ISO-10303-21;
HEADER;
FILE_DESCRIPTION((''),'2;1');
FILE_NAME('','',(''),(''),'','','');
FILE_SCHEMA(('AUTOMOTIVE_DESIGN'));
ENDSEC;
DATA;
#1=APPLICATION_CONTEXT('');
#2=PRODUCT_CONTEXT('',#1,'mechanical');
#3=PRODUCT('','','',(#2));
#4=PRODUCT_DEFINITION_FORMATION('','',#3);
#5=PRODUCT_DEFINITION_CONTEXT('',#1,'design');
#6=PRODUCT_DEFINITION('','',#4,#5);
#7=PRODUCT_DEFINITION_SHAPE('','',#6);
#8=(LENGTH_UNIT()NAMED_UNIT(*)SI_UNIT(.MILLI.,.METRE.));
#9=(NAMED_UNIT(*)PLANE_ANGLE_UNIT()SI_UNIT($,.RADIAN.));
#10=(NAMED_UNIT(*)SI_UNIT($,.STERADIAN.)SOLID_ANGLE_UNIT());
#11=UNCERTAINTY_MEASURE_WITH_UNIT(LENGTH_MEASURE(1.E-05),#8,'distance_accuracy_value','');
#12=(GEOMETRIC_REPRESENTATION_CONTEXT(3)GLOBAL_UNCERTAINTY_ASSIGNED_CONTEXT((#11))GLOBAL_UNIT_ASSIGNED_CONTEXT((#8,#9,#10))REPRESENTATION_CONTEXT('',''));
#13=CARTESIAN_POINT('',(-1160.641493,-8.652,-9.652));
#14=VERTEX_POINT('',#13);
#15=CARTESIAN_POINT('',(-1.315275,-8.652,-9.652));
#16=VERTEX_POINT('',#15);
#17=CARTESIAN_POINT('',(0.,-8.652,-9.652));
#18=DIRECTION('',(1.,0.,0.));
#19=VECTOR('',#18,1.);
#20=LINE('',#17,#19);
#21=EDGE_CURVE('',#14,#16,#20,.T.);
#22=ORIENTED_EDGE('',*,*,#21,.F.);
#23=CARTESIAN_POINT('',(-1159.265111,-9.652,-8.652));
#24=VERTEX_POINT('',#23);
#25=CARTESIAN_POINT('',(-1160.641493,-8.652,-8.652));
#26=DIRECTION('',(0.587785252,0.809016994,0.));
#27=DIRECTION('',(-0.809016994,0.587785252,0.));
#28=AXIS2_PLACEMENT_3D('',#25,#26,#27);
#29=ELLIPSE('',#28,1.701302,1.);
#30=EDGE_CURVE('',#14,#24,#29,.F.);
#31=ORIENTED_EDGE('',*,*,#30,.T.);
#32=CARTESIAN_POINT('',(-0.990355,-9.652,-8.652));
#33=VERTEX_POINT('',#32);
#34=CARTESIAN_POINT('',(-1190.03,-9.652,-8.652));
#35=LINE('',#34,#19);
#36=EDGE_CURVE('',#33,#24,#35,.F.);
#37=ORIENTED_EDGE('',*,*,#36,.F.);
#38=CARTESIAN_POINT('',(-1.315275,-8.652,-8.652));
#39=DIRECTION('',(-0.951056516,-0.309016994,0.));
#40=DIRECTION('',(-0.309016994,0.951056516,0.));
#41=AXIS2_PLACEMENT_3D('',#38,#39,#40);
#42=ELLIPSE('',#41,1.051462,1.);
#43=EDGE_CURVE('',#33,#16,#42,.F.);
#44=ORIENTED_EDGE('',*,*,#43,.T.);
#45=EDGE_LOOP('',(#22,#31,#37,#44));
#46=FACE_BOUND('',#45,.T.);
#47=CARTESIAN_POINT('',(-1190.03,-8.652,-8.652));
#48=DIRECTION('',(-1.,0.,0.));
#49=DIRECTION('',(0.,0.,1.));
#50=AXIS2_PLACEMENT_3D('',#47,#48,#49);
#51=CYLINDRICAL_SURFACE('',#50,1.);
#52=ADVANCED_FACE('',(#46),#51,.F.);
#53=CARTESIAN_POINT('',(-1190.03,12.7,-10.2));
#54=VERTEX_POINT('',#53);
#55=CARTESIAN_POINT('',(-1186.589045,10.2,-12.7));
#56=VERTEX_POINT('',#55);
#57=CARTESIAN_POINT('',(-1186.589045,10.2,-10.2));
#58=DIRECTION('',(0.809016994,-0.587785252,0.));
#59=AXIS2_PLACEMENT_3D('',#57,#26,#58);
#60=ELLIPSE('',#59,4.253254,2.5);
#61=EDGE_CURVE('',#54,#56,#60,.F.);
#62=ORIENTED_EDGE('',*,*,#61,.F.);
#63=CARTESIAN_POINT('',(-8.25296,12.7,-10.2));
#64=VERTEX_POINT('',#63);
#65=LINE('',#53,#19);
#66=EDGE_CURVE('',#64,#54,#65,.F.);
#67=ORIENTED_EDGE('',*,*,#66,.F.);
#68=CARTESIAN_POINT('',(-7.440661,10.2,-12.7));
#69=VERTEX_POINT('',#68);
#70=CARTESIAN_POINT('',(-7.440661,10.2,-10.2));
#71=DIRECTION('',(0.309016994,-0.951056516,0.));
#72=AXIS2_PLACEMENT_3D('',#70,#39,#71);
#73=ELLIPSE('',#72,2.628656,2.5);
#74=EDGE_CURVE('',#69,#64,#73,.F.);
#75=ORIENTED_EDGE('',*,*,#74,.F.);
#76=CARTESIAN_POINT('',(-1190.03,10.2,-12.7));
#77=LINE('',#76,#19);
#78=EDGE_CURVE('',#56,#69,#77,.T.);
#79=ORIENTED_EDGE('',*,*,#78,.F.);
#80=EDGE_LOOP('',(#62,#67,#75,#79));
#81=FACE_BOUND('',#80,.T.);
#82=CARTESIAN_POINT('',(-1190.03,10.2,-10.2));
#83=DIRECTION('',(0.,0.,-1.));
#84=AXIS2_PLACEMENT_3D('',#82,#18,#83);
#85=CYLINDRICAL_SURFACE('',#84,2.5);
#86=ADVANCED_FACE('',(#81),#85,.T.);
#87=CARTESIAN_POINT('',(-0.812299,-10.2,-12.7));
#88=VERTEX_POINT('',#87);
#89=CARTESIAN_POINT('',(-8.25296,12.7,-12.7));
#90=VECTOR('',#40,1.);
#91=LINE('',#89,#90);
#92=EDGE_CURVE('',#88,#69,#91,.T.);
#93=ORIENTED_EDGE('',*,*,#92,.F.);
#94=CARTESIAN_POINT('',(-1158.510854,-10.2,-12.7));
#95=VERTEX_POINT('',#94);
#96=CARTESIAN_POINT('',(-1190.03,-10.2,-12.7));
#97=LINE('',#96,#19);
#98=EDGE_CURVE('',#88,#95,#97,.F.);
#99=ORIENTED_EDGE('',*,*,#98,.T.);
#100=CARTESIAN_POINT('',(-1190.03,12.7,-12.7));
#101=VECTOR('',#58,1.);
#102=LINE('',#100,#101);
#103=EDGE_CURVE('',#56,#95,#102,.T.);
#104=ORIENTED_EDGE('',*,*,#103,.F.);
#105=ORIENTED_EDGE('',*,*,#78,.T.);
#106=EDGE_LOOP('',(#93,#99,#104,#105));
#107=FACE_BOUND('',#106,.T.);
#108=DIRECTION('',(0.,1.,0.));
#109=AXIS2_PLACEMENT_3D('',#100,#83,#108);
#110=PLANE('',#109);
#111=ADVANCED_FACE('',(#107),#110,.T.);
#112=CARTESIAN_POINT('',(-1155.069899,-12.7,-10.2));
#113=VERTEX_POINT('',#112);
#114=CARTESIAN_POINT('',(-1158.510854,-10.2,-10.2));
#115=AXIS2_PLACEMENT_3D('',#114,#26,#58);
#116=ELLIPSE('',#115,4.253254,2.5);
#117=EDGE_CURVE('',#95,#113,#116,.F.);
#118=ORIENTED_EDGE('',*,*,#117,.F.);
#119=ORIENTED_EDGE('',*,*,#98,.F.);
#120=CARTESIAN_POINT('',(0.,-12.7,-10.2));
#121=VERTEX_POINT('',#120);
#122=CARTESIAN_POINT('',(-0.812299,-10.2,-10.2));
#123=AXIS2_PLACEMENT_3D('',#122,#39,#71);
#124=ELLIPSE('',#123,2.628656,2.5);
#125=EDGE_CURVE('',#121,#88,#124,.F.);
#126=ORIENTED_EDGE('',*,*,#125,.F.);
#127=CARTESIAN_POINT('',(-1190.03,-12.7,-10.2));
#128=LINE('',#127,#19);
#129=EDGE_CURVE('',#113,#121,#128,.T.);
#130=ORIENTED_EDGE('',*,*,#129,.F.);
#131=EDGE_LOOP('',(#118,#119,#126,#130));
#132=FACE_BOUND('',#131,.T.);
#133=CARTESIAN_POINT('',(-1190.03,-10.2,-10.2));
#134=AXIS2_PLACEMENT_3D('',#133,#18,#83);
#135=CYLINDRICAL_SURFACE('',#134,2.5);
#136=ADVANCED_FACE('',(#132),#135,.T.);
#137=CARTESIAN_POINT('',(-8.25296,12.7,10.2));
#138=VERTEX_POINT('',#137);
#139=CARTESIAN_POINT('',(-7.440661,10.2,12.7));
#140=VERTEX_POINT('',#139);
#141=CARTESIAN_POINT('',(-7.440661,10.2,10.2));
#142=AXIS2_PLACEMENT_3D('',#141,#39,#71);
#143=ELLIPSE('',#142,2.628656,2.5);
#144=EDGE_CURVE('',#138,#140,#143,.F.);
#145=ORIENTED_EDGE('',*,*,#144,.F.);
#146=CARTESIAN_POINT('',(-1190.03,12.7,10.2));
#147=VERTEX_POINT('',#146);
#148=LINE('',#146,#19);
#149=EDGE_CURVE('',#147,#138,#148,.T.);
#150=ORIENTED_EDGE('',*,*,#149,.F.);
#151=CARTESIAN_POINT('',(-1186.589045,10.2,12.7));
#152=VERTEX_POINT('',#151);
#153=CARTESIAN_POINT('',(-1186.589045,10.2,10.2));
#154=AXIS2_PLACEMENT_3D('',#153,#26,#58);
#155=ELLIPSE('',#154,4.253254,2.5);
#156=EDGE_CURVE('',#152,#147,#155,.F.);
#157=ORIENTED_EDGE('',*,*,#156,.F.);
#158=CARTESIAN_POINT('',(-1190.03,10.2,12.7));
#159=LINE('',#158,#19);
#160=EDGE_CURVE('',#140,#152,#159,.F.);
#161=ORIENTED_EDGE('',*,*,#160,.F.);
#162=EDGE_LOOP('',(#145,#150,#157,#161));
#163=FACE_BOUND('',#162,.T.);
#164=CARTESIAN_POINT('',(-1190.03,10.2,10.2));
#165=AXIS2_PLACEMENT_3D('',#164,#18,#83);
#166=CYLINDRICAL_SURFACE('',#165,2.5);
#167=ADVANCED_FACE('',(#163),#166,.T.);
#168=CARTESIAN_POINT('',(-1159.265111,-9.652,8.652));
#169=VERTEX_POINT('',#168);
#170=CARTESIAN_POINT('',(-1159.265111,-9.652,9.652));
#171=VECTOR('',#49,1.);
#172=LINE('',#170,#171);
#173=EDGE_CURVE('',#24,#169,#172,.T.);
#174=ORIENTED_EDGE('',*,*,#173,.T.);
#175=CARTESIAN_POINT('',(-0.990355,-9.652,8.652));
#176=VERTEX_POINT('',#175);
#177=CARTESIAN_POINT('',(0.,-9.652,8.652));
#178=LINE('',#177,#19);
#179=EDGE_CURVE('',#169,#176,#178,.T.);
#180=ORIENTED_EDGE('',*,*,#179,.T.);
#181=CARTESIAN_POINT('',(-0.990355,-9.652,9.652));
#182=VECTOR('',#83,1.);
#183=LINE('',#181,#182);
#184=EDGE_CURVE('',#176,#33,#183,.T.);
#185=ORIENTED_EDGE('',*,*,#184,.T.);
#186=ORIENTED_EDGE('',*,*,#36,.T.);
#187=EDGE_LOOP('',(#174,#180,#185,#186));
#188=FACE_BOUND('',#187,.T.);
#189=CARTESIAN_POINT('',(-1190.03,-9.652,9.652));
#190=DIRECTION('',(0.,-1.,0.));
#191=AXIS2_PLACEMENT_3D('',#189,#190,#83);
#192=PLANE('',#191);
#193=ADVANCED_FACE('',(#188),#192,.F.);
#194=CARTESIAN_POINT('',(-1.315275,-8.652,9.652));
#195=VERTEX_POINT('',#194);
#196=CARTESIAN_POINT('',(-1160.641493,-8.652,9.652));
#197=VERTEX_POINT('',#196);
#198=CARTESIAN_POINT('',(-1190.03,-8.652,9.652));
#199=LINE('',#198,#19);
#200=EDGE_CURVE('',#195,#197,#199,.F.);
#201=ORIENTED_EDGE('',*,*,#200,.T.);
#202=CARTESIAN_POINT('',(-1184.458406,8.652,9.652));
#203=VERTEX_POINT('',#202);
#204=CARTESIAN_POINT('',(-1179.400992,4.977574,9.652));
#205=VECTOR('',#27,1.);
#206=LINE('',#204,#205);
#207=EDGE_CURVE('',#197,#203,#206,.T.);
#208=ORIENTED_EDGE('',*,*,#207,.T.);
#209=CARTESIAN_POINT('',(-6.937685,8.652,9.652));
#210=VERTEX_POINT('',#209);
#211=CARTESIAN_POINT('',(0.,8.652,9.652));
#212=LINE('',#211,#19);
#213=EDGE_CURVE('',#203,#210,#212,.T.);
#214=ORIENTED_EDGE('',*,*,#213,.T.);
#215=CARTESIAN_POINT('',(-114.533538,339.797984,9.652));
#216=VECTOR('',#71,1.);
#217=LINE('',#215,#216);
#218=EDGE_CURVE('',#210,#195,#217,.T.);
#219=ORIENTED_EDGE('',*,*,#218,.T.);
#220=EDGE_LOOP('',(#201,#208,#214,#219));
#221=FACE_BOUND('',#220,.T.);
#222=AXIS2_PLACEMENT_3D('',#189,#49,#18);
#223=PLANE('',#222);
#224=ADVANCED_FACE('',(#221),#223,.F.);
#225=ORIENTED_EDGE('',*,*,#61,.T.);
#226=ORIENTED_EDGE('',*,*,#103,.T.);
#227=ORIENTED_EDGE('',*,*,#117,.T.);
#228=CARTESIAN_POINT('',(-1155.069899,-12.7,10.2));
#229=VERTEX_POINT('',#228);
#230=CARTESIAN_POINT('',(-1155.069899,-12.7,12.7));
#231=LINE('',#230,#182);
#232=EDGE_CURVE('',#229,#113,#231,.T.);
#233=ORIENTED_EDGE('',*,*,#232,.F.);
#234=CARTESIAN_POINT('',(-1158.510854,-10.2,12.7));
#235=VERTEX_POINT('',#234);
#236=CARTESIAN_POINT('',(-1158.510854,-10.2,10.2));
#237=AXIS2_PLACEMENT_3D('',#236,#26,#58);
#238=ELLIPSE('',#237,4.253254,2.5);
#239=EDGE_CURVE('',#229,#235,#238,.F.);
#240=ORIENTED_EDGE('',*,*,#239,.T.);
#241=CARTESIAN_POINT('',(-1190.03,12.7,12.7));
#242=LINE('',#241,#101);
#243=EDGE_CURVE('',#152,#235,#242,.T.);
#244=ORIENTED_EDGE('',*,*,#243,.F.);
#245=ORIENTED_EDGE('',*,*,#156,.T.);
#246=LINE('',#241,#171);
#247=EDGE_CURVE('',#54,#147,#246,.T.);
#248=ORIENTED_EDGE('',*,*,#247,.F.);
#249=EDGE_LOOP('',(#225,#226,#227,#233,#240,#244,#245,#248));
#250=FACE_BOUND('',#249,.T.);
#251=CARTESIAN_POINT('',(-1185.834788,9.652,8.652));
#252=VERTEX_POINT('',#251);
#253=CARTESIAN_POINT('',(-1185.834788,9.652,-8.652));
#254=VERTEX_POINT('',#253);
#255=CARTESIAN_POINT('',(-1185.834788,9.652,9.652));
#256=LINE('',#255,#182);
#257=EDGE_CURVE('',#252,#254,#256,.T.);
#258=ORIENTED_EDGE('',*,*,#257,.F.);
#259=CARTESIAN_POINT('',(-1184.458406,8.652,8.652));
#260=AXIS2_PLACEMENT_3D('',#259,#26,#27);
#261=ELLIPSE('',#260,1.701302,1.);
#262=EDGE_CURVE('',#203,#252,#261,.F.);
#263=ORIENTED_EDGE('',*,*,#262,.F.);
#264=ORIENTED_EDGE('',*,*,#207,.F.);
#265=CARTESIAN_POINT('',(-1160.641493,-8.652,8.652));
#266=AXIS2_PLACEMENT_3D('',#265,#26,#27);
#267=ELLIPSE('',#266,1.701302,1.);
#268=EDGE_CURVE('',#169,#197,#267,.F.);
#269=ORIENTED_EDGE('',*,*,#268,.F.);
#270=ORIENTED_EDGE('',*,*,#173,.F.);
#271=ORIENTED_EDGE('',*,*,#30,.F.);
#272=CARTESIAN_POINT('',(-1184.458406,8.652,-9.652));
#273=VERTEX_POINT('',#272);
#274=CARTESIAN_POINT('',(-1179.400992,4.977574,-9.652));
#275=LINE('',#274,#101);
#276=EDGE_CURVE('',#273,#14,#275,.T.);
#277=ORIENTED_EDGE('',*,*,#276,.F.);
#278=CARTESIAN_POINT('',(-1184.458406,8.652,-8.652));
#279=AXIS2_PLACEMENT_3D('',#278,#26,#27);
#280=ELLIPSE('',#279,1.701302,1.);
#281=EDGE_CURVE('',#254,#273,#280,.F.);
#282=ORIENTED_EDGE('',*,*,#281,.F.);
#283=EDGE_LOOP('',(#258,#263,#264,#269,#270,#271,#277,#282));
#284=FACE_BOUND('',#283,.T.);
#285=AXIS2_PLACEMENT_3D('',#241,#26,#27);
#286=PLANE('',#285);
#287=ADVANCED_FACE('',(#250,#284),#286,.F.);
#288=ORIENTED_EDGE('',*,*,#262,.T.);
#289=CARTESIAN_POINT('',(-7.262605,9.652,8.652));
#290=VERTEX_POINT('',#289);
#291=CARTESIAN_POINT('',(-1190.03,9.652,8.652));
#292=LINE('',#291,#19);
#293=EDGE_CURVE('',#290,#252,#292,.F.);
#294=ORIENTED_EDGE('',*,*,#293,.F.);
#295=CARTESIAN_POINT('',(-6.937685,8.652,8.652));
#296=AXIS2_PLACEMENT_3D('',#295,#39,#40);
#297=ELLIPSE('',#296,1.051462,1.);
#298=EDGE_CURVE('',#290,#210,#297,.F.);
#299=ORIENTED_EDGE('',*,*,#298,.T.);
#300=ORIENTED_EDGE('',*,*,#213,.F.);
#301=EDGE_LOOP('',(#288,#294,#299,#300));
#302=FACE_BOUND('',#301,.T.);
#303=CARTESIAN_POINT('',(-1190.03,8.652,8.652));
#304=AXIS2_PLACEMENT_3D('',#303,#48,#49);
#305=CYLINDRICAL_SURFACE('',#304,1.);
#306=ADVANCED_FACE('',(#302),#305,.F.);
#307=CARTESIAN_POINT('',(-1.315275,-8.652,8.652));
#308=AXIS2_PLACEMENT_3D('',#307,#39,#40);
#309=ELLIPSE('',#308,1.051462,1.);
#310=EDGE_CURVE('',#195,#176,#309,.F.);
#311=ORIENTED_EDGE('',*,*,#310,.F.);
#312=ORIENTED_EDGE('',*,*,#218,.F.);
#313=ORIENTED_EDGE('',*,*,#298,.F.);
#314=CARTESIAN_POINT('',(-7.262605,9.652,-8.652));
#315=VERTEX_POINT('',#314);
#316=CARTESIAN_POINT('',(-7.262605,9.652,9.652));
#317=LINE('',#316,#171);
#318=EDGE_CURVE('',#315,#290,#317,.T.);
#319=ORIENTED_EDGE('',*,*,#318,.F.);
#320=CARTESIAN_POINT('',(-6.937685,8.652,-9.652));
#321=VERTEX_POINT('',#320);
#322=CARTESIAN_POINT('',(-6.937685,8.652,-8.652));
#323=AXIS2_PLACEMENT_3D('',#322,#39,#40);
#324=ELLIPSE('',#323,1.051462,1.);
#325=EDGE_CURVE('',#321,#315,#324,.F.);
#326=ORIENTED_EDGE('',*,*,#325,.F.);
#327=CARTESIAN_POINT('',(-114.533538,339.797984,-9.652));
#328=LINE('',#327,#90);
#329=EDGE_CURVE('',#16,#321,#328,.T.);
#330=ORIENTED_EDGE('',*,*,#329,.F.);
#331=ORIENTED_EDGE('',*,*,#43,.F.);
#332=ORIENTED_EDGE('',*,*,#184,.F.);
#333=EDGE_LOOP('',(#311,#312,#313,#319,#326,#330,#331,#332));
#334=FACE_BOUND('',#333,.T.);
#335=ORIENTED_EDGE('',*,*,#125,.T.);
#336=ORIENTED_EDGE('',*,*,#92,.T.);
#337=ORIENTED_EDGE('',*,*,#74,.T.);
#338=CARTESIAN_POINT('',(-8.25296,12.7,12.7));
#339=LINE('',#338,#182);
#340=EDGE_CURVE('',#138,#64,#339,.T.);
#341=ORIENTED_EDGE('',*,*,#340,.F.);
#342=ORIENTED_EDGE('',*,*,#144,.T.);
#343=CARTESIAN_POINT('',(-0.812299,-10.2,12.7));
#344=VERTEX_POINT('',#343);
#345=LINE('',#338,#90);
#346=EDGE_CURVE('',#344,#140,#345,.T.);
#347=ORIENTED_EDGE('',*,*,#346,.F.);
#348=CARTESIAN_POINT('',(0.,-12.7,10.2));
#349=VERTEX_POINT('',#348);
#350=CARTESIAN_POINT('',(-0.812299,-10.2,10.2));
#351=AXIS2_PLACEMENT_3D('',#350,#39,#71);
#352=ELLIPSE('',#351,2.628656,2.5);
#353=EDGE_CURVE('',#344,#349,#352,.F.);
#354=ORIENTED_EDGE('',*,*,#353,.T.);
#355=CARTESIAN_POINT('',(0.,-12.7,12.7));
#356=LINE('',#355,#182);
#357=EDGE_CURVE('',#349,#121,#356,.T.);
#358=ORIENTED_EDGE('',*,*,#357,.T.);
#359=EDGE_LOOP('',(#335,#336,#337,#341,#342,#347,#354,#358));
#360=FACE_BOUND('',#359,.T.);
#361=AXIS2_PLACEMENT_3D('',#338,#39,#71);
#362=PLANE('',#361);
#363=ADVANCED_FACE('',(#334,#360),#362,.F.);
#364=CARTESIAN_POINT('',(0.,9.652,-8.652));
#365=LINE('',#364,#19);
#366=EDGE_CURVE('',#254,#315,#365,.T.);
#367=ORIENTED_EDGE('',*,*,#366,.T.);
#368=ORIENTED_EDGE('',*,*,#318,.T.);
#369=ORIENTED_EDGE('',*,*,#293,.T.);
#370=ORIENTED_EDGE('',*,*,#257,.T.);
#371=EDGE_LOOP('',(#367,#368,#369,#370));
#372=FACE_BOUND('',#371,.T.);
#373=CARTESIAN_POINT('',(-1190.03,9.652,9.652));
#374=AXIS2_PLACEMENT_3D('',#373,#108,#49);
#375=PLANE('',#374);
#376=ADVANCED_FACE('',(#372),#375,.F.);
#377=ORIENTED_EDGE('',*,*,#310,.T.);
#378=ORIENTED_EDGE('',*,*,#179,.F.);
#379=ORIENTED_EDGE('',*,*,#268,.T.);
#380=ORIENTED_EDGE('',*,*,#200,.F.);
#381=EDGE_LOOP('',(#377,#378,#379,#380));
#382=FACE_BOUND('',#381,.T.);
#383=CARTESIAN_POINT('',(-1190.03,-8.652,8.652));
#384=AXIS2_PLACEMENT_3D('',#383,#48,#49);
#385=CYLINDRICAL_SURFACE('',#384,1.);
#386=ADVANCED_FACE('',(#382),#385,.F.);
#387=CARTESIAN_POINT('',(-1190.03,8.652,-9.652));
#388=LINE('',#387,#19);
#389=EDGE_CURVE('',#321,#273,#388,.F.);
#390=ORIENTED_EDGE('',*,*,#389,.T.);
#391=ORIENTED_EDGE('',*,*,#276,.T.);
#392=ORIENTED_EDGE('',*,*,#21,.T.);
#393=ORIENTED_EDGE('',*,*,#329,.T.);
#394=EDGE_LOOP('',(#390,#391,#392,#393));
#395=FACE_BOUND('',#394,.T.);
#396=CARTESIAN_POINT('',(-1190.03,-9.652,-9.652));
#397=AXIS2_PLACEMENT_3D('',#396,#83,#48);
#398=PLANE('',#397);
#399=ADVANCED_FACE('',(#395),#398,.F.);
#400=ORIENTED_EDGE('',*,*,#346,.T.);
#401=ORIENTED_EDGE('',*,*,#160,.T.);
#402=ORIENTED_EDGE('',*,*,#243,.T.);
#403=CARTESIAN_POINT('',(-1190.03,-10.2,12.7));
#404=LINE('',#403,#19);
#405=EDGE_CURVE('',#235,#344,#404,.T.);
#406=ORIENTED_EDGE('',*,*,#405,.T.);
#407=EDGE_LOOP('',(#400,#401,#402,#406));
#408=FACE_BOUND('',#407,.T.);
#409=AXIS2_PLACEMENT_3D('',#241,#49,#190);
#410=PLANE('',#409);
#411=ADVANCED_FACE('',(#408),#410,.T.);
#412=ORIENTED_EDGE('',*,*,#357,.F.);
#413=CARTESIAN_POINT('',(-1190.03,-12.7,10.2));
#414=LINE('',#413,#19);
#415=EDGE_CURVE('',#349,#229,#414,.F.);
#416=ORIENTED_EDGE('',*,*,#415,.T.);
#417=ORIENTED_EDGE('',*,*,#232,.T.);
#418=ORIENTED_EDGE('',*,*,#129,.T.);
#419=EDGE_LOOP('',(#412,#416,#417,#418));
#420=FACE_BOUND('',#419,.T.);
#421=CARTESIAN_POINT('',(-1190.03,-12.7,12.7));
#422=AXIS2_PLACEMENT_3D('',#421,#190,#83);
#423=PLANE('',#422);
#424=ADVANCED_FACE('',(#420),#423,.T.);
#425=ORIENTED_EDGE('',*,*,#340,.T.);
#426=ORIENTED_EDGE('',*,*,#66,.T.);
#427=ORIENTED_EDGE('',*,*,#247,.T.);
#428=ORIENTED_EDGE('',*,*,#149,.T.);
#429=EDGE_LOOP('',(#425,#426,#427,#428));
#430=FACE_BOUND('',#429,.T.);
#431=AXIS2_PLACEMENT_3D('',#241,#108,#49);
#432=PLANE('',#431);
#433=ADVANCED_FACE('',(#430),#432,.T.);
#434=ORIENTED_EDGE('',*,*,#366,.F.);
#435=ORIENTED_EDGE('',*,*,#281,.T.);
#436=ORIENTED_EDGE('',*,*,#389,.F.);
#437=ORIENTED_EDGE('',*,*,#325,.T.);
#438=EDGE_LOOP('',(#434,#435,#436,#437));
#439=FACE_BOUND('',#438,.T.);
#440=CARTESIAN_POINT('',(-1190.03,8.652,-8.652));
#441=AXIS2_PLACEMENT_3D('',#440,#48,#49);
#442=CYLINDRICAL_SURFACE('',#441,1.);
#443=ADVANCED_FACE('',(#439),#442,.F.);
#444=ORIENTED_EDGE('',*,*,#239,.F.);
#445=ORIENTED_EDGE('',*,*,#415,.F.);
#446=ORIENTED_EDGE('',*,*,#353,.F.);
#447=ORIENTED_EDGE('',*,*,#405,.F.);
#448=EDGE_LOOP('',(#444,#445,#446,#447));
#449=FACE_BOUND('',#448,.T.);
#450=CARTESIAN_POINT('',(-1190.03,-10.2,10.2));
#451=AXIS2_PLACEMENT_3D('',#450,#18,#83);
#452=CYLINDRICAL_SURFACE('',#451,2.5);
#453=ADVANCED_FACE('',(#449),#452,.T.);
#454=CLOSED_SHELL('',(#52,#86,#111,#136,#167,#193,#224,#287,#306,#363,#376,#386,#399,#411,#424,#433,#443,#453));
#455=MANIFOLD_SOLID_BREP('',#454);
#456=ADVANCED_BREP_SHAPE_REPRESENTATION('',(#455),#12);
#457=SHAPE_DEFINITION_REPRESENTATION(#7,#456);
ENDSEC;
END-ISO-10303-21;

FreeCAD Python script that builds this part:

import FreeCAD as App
import Part
import Sketcher

V = App.Vector
Q = App.Units.Quantity


def edges_at(feature, points):
    """Names of the edges that pass closest to the given points."""
    edges = feature.Shape.Edges
    near = lambda p: min(range(len(edges)), key=lambda i: edges[i].distToShape(Part.Vertex(*p))[0])
    return sorted({f"Edge{near(p) + 1}" for p in points})


def add_polygon(sketch, points):
    """Adds a closed chain of lines whose ends are joined by coincident constraints."""
    first, n = sketch.GeometryCount, len(points)
    for a, b in zip(points, points[1:] + points[:1]):
        sketch.addGeometry(Part.LineSegment(App.Vector(*a, 0), App.Vector(*b, 0)), False)
    for i in range(n):
        sketch.addConstraint(Sketcher.Constraint("Coincident", first + i, 2, first + (i + 1) % n, 1))

doc = App.newDocument("Part")
body = doc.addObject("PartDesign::Body", "Body")

# Sketch on YZ plane
sketch1 = body.newObject("Sketcher::SketchObject", "Sketch")
sketch1.AttachmentSupport = (doc.getObject("YZ_Plane"), [""])
sketch1.MapMode = "FlatFace"
add_polygon(sketch1, [(13, 13), (-13, 13), (-13, -13), (13, -13)])  # lines 0-3
add_polygon(sketch1, [(-10, -10), (-10, 10), (10, 10), (10, -10)])  # lines 4-7
sketch1.addConstraint(Sketcher.Constraint("Horizontal", 0))
sketch1.addConstraint(Sketcher.Constraint("Vertical", 1))
sketch1.addConstraint(Sketcher.Constraint("Horizontal", 2))
sketch1.addConstraint(Sketcher.Constraint("Vertical", 3))
sketch1.addConstraint(Sketcher.Constraint("Vertical", 4))
sketch1.addConstraint(Sketcher.Constraint("Horizontal", 5))
sketch1.addConstraint(Sketcher.Constraint("Vertical", 6))
sketch1.addConstraint(Sketcher.Constraint("Horizontal", 7))
sketch1.addConstraint(Sketcher.Constraint("Symmetric", 0, 2, 2, 2, -1, 1))
sketch1.addConstraint(Sketcher.Constraint("Symmetric", 4, 2, 6, 2, -1, 1))
sketch1.addConstraint(Sketcher.Constraint("Equal", 2, 1))
sketch1.addConstraint(Sketcher.Constraint("Equal", 7, 4))
sketch1.addConstraint(Sketcher.Constraint("DistanceX", 0, 2, 0, 1, 25.4))
sketch1.addConstraint(Sketcher.Constraint("DistanceX", 5, 1, 5, 2, 19.304))
pad1 = body.newObject("PartDesign::Pad", "Pad")
pad1.Profile = sketch1
pad1.Length = 1190.03
pad1.Reversed = True
doc.recompute()

fillet = body.newObject("PartDesign::Fillet", "Fillet")
fillet.Base = (pad1, edges_at(pad1, [
    (-595.015, -12.7, -12.7),
    (-595.015, -12.7, 12.7),
    (-595.015, 12.7, 12.7),
    (-595.015, 12.7, -12.7),
]))
fillet.Radius = 2.5
doc.recompute()

fillet2 = body.newObject("PartDesign::Fillet", "Fillet001")
fillet2.Base = (fillet, edges_at(fillet, [
    (-595.015, 9.652, -9.652),
    (-595.015, -9.652, -9.652),
    (-595.015, -9.652, 9.652),
    (-595.015, 9.652, 9.652),
]))
fillet2.Radius = 1

# Sketch on XY plane
sketch2 = body.newObject("Sketcher::SketchObject", "Sketch001")
sketch2.AttachmentSupport = (doc.getObject("XY_Plane"), [""])
sketch2.MapMode = "FlatFace"
sketch2.AttachmentOffset = App.Placement(V(0, 0, -12.7), App.Rotation())
add_polygon(sketch2, [(-1190, 13), (-1155, -13), (-1190, -13)])  # lines 0-2
add_polygon(sketch2, [(-8, 13), (0, 13), (0, -13)])  # lines 3-5
sketch2.addConstraint(Sketcher.Constraint("Horizontal", 1))
sketch2.addConstraint(Sketcher.Constraint("Vertical", 2))
sketch2.addConstraint(Sketcher.Constraint("Horizontal", 3))
sketch2.addConstraint(Sketcher.Constraint("Vertical", 4))
sketch2.addConstraint(Sketcher.Constraint("Symmetric", 3, 2, 4, 2, -1, 1))
sketch2.addConstraint(Sketcher.Constraint("Horizontal", 2, 2, 3, 2))
sketch2.addConstraint(Sketcher.Constraint("Horizontal", 1, 2, 4, 2))
sketch2.addConstraint(Sketcher.Constraint("Angle", 0, Q("-36 deg")))
sketch2.addConstraint(Sketcher.Constraint("Angle", 5, Q("108 deg")))
sketch2.addConstraint(Sketcher.Constraint("DistanceY", 2, 1, 2, 2, 25.4))
sketch2.addConstraint(Sketcher.Constraint("DistanceX", 1, 2, -1, 1, 1190.03))
pocket1 = body.newObject("PartDesign::Pocket", "Pocket")
pocket1.Profile = sketch2
pocket1.Type = "ThroughAll"
pocket1.Reversed = True

doc.recompute()
